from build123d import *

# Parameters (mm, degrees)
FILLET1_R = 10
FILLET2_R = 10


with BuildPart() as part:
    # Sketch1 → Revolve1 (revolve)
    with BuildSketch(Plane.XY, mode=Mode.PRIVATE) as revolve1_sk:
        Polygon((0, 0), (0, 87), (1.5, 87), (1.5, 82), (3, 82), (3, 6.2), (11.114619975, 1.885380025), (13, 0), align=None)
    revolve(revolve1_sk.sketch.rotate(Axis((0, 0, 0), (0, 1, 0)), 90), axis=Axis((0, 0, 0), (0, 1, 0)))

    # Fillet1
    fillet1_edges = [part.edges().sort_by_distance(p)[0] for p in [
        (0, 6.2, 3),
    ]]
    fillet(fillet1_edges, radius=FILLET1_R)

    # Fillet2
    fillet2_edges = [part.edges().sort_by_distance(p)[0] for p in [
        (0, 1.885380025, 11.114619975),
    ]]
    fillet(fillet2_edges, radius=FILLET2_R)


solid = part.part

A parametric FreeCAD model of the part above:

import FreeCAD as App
import Part
import Sketcher
Q = App.Units.Quantity


def edges_at(feature, points):
    """Names of the edges that pass closest to the given points."""
    edges = feature.Shape.Edges
    near = lambda p: min(range(len(edges)), key=lambda i: edges[i].distToShape(Part.Vertex(*p))[0])
    return sorted({f"Edge{near(p) + 1}" for p in points})


def add_polygon(sketch, points):
    """Adds a closed chain of lines whose ends are joined by coincident constraints."""
    first, n = sketch.GeometryCount, len(points)
    for a, b in zip(points, points[1:] + points[:1]):
        sketch.addGeometry(Part.LineSegment(App.Vector(*a, 0), App.Vector(*b, 0)), False)
    for i in range(n):
        sketch.addConstraint(Sketcher.Constraint("Coincident", first + i, 2, first + (i + 1) % n, 1))

doc = App.newDocument("Part")
body = doc.addObject("PartDesign::Body", "Body")

# Sketch on XY plane
sketch1 = body.newObject("Sketcher::SketchObject", "Sketch")
sketch1.AttachmentSupport = (doc.getObject("XY_Plane"), [""])
sketch1.MapMode = "FlatFace"
add_polygon(sketch1, [(0, 87), (0, 0), (13, 0), (11.1, 1.9), (3, 6.2), (3, 82), (1.5, 82), (1.5, 87)])  # lines 0-7
sketch1.addConstraint(Sketcher.Constraint("Vertical", 0))
sketch1.addConstraint(Sketcher.Constraint("Horizontal", 1))
sketch1.addConstraint(Sketcher.Constraint("Vertical", 4))
sketch1.addConstraint(Sketcher.Constraint("Horizontal", 5))
sketch1.addConstraint(Sketcher.Constraint("Vertical", 6))
sketch1.addConstraint(Sketcher.Constraint("Horizontal", 7))
sketch1.addConstraint(Sketcher.Constraint("Coincident", 0, 2, -1, 1))
sketch1.addConstraint(Sketcher.Constraint("Equal", 5, 7))
sketch1.addConstraint(Sketcher.Constraint("DistanceX", 1, 1, 1, 2, 13.0))
sketch1.addConstraint(Sketcher.Constraint("DistanceY", 0, 2, 0, 1, 87.0))
sketch1.addConstraint(Sketcher.Constraint("DistanceY", 6, 1, 6, 2, 5.0))
sketch1.addConstraint(Sketcher.Constraint("Angle", 2, Q("135 deg")))
sketch1.addConstraint(Sketcher.Constraint("Angle", 3, Q("152 deg")))
sketch1.addConstraint(Sketcher.Constraint("DistanceX", 5, 2, 5, 1, 1.5))
sketch1.addConstraint(Sketcher.Constraint("DistanceY", 4, 1, 4, 2, 75.8))
revolution = body.newObject("PartDesign::Revolution", "Revolution")
revolution.Profile = sketch1
revolution.ReferenceAxis = (sketch1, ["V_Axis"])
revolution.Angle = 360
doc.recompute()

fillet = body.newObject("PartDesign::Fillet", "Fillet")
fillet.Base = (revolution, edges_at(revolution, [(0, 6.2, 3)]))
fillet.Radius = 10
doc.recompute()

fillet2 = body.newObject("PartDesign::Fillet", "Fillet001")
fillet2.Base = (fillet, edges_at(fillet, [(0, 1.885, 11.115)]))
fillet2.Radius = 10

doc.recompute()
